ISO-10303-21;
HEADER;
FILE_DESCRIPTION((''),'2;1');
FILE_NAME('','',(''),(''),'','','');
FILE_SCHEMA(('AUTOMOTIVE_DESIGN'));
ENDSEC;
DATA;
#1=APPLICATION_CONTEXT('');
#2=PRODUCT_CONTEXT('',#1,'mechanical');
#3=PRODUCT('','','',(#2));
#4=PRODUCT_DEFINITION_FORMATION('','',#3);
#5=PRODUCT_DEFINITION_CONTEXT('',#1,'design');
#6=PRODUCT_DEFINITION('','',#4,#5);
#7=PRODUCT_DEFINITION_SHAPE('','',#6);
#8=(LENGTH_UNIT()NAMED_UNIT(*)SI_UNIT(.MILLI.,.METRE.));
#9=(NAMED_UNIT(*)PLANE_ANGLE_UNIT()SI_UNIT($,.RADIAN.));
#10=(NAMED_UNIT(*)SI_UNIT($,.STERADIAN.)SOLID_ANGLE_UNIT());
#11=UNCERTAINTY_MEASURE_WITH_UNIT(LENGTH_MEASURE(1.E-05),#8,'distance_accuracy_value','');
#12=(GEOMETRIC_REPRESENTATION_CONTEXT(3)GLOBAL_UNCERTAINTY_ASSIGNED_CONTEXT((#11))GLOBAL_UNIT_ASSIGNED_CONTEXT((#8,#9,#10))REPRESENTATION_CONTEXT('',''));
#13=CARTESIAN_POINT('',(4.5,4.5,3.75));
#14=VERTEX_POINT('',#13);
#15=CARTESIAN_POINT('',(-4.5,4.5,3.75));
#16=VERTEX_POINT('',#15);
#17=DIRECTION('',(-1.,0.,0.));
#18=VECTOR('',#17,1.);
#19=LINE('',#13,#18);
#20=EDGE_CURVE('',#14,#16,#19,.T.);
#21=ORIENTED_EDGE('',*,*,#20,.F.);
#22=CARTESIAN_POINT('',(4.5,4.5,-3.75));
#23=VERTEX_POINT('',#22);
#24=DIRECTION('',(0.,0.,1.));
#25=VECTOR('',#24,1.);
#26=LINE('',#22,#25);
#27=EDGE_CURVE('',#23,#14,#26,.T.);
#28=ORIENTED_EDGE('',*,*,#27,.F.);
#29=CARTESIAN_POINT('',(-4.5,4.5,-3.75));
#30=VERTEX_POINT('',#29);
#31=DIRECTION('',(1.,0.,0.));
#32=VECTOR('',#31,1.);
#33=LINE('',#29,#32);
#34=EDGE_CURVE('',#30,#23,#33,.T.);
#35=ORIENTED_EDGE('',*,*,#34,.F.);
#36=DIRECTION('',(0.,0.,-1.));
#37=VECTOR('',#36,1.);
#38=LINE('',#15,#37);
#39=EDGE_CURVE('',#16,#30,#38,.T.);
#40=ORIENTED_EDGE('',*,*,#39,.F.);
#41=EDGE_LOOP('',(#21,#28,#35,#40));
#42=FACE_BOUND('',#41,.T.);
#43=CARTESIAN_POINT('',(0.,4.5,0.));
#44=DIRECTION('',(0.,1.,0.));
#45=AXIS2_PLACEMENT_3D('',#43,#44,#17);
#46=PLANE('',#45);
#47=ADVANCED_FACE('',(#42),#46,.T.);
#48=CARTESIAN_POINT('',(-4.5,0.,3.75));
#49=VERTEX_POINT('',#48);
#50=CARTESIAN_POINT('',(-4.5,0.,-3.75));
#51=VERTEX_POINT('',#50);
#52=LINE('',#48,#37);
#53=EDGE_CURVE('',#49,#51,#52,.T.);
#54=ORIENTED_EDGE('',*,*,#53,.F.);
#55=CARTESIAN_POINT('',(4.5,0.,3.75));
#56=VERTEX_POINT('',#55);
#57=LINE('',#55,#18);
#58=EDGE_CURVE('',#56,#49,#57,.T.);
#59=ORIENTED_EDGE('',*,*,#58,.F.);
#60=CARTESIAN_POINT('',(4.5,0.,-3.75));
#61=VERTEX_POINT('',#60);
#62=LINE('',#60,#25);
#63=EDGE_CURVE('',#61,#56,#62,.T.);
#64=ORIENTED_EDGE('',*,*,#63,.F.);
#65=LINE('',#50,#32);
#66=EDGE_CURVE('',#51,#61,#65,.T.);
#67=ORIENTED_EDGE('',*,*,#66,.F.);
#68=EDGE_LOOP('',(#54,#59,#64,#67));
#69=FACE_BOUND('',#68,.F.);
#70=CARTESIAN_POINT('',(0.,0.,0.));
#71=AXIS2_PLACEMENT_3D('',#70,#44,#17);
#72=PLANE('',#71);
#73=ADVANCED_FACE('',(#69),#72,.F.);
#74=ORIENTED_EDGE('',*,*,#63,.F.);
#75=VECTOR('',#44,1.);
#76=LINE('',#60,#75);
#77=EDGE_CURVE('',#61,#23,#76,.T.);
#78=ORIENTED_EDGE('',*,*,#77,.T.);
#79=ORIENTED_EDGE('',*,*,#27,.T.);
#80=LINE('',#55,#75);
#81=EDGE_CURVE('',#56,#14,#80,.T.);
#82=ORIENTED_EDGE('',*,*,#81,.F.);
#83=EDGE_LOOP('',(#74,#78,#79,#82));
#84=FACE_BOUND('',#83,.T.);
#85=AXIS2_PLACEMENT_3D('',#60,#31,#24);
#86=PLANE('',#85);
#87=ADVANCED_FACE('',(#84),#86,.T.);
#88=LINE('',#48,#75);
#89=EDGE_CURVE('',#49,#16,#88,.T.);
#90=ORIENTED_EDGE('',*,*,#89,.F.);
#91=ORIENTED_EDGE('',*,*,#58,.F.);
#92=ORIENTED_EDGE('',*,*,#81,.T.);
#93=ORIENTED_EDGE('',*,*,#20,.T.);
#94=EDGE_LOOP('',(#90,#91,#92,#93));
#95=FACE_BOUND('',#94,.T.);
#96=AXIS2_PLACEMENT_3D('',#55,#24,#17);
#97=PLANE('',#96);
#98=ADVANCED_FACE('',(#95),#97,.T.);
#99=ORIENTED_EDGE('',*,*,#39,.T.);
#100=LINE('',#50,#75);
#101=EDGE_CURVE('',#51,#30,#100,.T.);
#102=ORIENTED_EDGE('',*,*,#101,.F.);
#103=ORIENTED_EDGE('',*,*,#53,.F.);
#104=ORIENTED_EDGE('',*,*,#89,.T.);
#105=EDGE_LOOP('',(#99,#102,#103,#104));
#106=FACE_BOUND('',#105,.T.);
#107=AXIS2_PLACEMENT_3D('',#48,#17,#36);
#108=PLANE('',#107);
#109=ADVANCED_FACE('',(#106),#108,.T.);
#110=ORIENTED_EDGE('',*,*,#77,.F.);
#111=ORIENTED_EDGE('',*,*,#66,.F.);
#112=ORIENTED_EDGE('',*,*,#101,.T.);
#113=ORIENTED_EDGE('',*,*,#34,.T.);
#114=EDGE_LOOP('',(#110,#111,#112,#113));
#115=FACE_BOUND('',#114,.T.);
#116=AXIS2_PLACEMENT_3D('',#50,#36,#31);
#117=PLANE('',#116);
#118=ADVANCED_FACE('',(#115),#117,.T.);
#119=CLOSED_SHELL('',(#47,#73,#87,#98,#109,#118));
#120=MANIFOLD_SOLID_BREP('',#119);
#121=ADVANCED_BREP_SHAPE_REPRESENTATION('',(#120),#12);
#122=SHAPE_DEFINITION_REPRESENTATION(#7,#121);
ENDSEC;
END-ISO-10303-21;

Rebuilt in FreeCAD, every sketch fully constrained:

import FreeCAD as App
import Part
import Sketcher


def add_polygon(sketch, points):
    """Adds a closed chain of lines whose ends are joined by coincident constraints."""
    first, n = sketch.GeometryCount, len(points)
    for a, b in zip(points, points[1:] + points[:1]):
        sketch.addGeometry(Part.LineSegment(App.Vector(*a, 0), App.Vector(*b, 0)), False)
    for i in range(n):
        sketch.addConstraint(Sketcher.Constraint("Coincident", first + i, 2, first + (i + 1) % n, 1))

doc = App.newDocument("Part")
body = doc.addObject("PartDesign::Body", "Body")

sketch1 = body.newObject("Sketcher::SketchObject", "Sketch")
sketch1.AttachmentSupport = (doc.getObject("XZ_Plane"), [""])
sketch1.MapMode = "FlatFace"
add_polygon(sketch1, [(-4, 4), (4, 4), (4, -4), (-4, -4)])
sketch1.addConstraint([
    Sketcher.Constraint("Horizontal", 0),
    Sketcher.Constraint("Vertical", 1),
    Sketcher.Constraint("Horizontal", 2),
    Sketcher.Constraint("Vertical", 3),
    Sketcher.Constraint("Symmetric", 0, 2, 2, 2, -1, 1),
    Sketcher.Constraint("DistanceX", 0, 1, 0, 2, 9.0),
    Sketcher.Constraint("DistanceY", 1, 2, 1, 1, 7.5),
])
pad1 = body.newObject("PartDesign::Pad", "Pad")
pad1.Profile = sketch1
pad1.Length = 4.5
pad1.Reversed = True

doc.recompute()
